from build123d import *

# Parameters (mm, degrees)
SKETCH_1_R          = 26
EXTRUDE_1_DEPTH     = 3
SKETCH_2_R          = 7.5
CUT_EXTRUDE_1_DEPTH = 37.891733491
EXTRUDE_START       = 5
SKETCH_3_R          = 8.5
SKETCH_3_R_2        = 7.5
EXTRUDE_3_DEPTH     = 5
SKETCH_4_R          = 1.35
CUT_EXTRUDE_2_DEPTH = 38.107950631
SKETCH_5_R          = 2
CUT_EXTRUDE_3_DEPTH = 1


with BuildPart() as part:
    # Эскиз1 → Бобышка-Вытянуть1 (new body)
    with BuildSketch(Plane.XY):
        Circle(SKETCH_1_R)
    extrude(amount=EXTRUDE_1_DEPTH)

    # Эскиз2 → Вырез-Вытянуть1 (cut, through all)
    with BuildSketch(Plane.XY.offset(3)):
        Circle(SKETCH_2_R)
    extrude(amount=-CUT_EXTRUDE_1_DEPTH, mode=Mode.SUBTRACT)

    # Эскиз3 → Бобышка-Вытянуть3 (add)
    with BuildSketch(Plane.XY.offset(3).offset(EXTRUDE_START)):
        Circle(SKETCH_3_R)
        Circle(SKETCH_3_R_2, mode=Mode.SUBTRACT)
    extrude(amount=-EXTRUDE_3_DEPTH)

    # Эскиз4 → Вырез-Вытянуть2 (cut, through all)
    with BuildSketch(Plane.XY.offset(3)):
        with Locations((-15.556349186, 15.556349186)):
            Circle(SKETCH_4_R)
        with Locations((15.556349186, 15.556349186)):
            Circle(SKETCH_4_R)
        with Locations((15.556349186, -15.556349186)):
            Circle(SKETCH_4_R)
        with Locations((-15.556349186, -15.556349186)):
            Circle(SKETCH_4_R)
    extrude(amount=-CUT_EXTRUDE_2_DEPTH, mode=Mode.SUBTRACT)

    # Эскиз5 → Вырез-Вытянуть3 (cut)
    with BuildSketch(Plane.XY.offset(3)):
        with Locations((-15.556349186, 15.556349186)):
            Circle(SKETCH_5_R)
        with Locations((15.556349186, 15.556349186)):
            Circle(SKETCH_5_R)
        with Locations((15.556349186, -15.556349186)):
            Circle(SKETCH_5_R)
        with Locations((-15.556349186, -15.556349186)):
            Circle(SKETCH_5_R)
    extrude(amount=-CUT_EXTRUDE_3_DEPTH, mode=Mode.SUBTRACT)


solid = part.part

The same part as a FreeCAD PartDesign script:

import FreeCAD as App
import Part
import Sketcher

doc = App.newDocument("Part")
body = doc.addObject("PartDesign::Body", "Body")

# Sketch on XY plane
sketch1 = body.newObject("Sketcher::SketchObject", "Sketch")
sketch1.AttachmentSupport = (doc.getObject("XY_Plane"), [""])
sketch1.MapMode = "FlatFace"
sketch1.addGeometry(Part.Circle(App.Vector(0, 0, 0), App.Vector(0, 0, 1), 26), False)
sketch1.addConstraint(Sketcher.Constraint("Coincident", 0, 3, -1, 1))
sketch1.addConstraint(Sketcher.Constraint("Diameter", 0, 52.0))
pad1 = body.newObject("PartDesign::Pad", "Pad")
pad1.Profile = sketch1
pad1.Length = 3

# Sketch on XY plane
sketch2 = body.newObject("Sketcher::SketchObject", "Sketch001")
sketch2.AttachmentSupport = (doc.getObject("XY_Plane"), [""])
sketch2.MapMode = "FlatFace"
sketch2.AttachmentOffset = App.Placement(App.Vector(0, 0, 3), App.Rotation())
sketch2.addGeometry(Part.Circle(App.Vector(0, 0, 0), App.Vector(0, 0, 1), 7.5), False)
sketch2.addConstraint(Sketcher.Constraint("Coincident", 0, 3, -1, 1))
sketch2.addConstraint(Sketcher.Constraint("Diameter", 0, 15.0))
pocket1 = body.newObject("PartDesign::Pocket", "Pocket")
pocket1.Profile = sketch2
pocket1.Type = "ThroughAll"

# Sketch on XY plane
sketch3 = body.newObject("Sketcher::SketchObject", "Sketch002")
sketch3.AttachmentSupport = (doc.getObject("XY_Plane"), [""])
sketch3.MapMode = "FlatFace"
sketch3.AttachmentOffset = App.Placement(App.Vector(0, 0, 8), App.Rotation())
sketch3.addGeometry(Part.Circle(App.Vector(0, 0, 0), App.Vector(0, 0, 1), 8.5), False)
sketch3.addGeometry(Part.Circle(App.Vector(0, 0, 0), App.Vector(0, 0, 1), 7.5), False)
sketch3.addConstraint(Sketcher.Constraint("Coincident", 0, 3, -1, 1))
sketch3.addConstraint(Sketcher.Constraint("Coincident", 1, 3, -1, 1))
sketch3.addConstraint(Sketcher.Constraint("Diameter", 0, 17.0))
sketch3.addConstraint(Sketcher.Constraint("Diameter", 1, 15.0))
pad2 = body.newObject("PartDesign::Pad", "Pad001")
pad2.Profile = sketch3
pad2.Length = 5
pad2.Reversed = True

# Sketch on XY plane
sketch4 = body.newObject("Sketcher::SketchObject", "Sketch003")
sketch4.AttachmentSupport = (doc.getObject("XY_Plane"), [""])
sketch4.MapMode = "FlatFace"
sketch4.AttachmentOffset = App.Placement(App.Vector(0, 0, 3), App.Rotation())
sketch4.addGeometry(Part.Circle(App.Vector(-15.556349, 15.556349, 0), App.Vector(0, 0, 1), 1.35), False)
sketch4.addGeometry(Part.Circle(App.Vector(15.556349, 15.556349, 0), App.Vector(0, 0, 1), 1.35), False)
sketch4.addGeometry(Part.Circle(App.Vector(15.556349, -15.556349, 0), App.Vector(0, 0, 1), 1.35), False)
sketch4.addGeometry(Part.Circle(App.Vector(-15.556349, -15.556349, 0), App.Vector(0, 0, 1), 1.35), False)
sketch4.addConstraint(Sketcher.Constraint("Equal", 0, 1))
sketch4.addConstraint(Sketcher.Constraint("Equal", 1, 2))
sketch4.addConstraint(Sketcher.Constraint("Equal", 2, 3))
sketch4.addConstraint(Sketcher.Constraint("Symmetric", 0, 3, 2, 3, -1, 1))
sketch4.addConstraint(Sketcher.Constraint("Symmetric", 1, 3, 3, 3, -1, 1))
sketch4.addConstraint(Sketcher.Constraint("Symmetric", 0, 3, 1, 3, -2))
sketch4.addConstraint(Sketcher.Constraint("Diameter", 0, 2.7))
sketch4.addConstraint(Sketcher.Constraint("DistanceX", 0, 3, 1, 3, 31.112698))
sketch4.addConstraint(Sketcher.Constraint("DistanceY", 2, 3, 1, 3, 31.112698))
pocket2 = body.newObject("PartDesign::Pocket", "Pocket001")
pocket2.Profile = sketch4
pocket2.Type = "ThroughAll"

# Sketch on XY plane
sketch5 = body.newObject("Sketcher::SketchObject", "Sketch004")
sketch5.AttachmentSupport = (doc.getObject("XY_Plane"), [""])
sketch5.MapMode = "FlatFace"
sketch5.AttachmentOffset = App.Placement(App.Vector(0, 0, 3), App.Rotation())
sketch5.addGeometry(Part.Circle(App.Vector(-15.556349, 15.556349, 0), App.Vector(0, 0, 1), 2), False)
sketch5.addGeometry(Part.Circle(App.Vector(15.556349, 15.556349, 0), App.Vector(0, 0, 1), 2), False)
sketch5.addGeometry(Part.Circle(App.Vector(15.556349, -15.556349, 0), App.Vector(0, 0, 1), 2), False)
sketch5.addGeometry(Part.Circle(App.Vector(-15.556349, -15.556349, 0), App.Vector(0, 0, 1), 2), False)
sketch5.addConstraint(Sketcher.Constraint("Equal", 0, 1))
sketch5.addConstraint(Sketcher.Constraint("Equal", 1, 2))
sketch5.addConstraint(Sketcher.Constraint("Equal", 2, 3))
sketch5.addConstraint(Sketcher.Constraint("Symmetric", 0, 3, 2, 3, -1, 1))
sketch5.addConstraint(Sketcher.Constraint("Symmetric", 1, 3, 3, 3, -1, 1))
sketch5.addConstraint(Sketcher.Constraint("Symmetric", 0, 3, 1, 3, -2))
sketch5.addConstraint(Sketcher.Constraint("Diameter", 0, 4.0))
sketch5.addConstraint(Sketcher.Constraint("DistanceX", 0, 3, 1, 3, 31.112698))
sketch5.addConstraint(Sketcher.Constraint("DistanceY", 2, 3, 1, 3, 31.112698))
pocket3 = body.newObject("PartDesign::Pocket", "Pocket002")
pocket3.Profile = sketch5
pocket3.Length = 1

doc.recompute()
